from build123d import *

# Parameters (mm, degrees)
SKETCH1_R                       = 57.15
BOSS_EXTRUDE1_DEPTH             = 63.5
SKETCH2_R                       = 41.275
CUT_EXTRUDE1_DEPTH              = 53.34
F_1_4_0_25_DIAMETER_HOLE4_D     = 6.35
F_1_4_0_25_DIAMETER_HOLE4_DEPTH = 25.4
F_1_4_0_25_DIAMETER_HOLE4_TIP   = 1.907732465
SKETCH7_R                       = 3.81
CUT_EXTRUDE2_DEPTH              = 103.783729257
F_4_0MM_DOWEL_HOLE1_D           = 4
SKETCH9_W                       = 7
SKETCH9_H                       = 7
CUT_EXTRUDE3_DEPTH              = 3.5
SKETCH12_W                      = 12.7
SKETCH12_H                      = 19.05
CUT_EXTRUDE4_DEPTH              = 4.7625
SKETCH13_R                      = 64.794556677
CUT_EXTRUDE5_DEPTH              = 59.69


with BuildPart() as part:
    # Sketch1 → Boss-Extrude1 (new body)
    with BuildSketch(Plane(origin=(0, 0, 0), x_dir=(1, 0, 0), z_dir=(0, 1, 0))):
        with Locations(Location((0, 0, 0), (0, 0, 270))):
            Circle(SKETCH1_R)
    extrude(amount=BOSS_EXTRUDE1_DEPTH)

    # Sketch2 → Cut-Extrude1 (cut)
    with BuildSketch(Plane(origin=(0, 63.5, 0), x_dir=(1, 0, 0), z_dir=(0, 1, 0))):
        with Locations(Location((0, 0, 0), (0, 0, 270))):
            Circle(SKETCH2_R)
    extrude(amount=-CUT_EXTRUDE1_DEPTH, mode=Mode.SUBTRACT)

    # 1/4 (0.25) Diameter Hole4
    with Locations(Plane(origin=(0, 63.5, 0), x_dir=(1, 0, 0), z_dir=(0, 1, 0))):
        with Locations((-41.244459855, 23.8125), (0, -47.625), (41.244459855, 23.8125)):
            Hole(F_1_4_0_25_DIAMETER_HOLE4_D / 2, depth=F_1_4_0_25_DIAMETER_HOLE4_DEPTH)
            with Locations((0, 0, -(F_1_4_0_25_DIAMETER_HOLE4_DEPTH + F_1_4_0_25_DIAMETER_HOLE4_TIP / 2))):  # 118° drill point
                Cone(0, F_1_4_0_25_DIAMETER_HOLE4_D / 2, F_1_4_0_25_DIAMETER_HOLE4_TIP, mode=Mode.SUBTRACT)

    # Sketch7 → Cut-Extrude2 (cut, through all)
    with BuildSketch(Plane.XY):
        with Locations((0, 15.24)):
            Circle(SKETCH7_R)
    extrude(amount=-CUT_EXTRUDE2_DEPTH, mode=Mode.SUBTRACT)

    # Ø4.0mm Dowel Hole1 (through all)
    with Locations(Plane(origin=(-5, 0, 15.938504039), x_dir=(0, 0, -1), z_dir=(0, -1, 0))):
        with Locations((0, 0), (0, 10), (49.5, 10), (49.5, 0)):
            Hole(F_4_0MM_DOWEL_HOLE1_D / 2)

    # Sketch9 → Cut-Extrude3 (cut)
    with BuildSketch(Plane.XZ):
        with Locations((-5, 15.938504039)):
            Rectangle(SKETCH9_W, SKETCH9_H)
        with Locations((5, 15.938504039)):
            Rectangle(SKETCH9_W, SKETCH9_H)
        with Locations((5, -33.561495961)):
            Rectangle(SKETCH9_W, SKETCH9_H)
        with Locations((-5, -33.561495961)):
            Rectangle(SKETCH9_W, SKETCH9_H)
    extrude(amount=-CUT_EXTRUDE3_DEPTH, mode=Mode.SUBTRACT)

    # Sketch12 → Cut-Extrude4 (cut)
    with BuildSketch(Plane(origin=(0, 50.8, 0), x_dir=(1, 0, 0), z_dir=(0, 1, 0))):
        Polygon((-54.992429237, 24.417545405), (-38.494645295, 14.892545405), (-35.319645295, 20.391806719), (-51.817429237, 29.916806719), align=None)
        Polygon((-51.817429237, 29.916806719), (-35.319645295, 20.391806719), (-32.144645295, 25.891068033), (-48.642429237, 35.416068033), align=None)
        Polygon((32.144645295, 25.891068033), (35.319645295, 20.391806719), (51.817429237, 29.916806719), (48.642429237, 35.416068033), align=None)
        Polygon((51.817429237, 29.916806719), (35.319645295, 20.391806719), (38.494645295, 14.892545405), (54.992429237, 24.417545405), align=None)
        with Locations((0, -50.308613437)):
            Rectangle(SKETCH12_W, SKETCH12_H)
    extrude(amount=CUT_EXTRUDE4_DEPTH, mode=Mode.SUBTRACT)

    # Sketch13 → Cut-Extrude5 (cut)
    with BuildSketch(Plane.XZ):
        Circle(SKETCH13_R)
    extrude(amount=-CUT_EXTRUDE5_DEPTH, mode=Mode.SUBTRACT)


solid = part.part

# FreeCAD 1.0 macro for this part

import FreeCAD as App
import Part
import Sketcher

V = App.Vector
Q = App.Units.Quantity


def add_polygon(sketch, points):
    """Adds a closed chain of lines whose ends are joined by coincident constraints."""
    first, n = sketch.GeometryCount, len(points)
    for a, b in zip(points, points[1:] + points[:1]):
        sketch.addGeometry(Part.LineSegment(App.Vector(*a, 0), App.Vector(*b, 0)), False)
    for i in range(n):
        sketch.addConstraint(Sketcher.Constraint("Coincident", first + i, 2, first + (i + 1) % n, 1))

doc = App.newDocument("Part")
body = doc.addObject("PartDesign::Body", "Body")

# Sketch on XZ plane
sketch1 = body.newObject("Sketcher::SketchObject", "Sketch")
sketch1.AttachmentSupport = (doc.getObject("XZ_Plane"), [""])
sketch1.MapMode = "FlatFace"
sketch1.addGeometry(Part.Circle(V(0, 0, 0), V(0, 0, 1), 57), False)
sketch1.addConstraint([
    Sketcher.Constraint("Coincident", 0, 3, -1, 1),
    Sketcher.Constraint("Diameter", 0, Q("4.5 in")),
])
pad1 = body.newObject("PartDesign::Pad", "Pad")
pad1.Profile = sketch1
pad1.Length = Q("2.5 in")
pad1.Reversed = True

# Sketch on XZ plane
sketch2 = body.newObject("Sketcher::SketchObject", "Sketch001")
sketch2.AttachmentSupport = (doc.getObject("XZ_Plane"), [""])
sketch2.MapMode = "FlatFace"
sketch2.AttachmentOffset = App.Placement(V(0, 0, -2.5 * 25.4), App.Rotation())
sketch2.addGeometry(Part.Circle(V(0, 0, 0), V(0, 0, 1), 41), False)
sketch2.addConstraint([
    Sketcher.Constraint("Coincident", 0, 3, -1, 1),
    Sketcher.Constraint("Diameter", 0, Q("3.25 in")),
])
pocket1 = body.newObject("PartDesign::Pocket", "Pocket")
pocket1.Profile = sketch2
pocket1.Length = Q("2.1 in")
pocket1.Reversed = True

# Sketch on XZ plane
sketch3 = body.newObject("Sketcher::SketchObject", "Sketch002")
sketch3.AttachmentSupport = (doc.getObject("XZ_Plane"), [""])
sketch3.MapMode = "FlatFace"
sketch3.AttachmentOffset = App.Placement(V(0, 0, -2.5 * 25.4), App.Rotation())
sketch3.addGeometry([
    Part.Circle(V(-41.2, -23.8, 0), V(0, 0, 1), 3.2),
    Part.Circle(V(0, 47.6, 0), V(0, 0, 1), 3.2),
    Part.Circle(V(41.2, -23.8, 0), V(0, 0, 1), 3.2),
], False)
sketch3.addConstraint([
    Sketcher.Constraint("Equal", 0, 1),
    Sketcher.Constraint("Equal", 1, 2),
    Sketcher.Constraint("Symmetric", 0, 3, 2, 3, -2),
    Sketcher.Constraint("PointOnObject", 1, 3, -2),
    Sketcher.Constraint("Diameter", 0, Q("0.25 in")),
    Sketcher.Constraint("DistanceY", 0, 3, -1, 1, Q("0.9375 in")),
    Sketcher.Constraint("DistanceY", -1, 1, 1, 3, Q("1.875 in")),
    Sketcher.Constraint("DistanceX", 0, 3, -1, 1, Q("41.24446 mm")),
])
doc.recompute()
hole = body.newObject("PartDesign::Hole", "Hole")
hole.Profile = sketch3
hole.ThreadType = "None"
hole.Diameter = Q("0.25 in")
hole.DepthType = "Dimension"
hole.Depth = Q("1 in")
hole.DrillPoint = "Angled"
hole.DrillPointAngle = 118
hole.Reversed = True

# Sketch on XY plane
sketch4 = body.newObject("Sketcher::SketchObject", "Sketch003")
sketch4.AttachmentSupport = (doc.getObject("XY_Plane"), [""])
sketch4.MapMode = "FlatFace"
sketch4.addGeometry(Part.Circle(V(0, 15.2, 0), V(0, 0, 1), 3.8), False)
sketch4.addConstraint([
    Sketcher.Constraint("PointOnObject", 0, 3, -2),
    Sketcher.Constraint("Diameter", 0, Q("0.3 in")),
    Sketcher.Constraint("DistanceY", -1, 1, 0, 3, Q("0.6 in")),
])
pocket2 = body.newObject("PartDesign::Pocket", "Pocket001")
pocket2.Profile = sketch4
pocket2.Type = "ThroughAll"

# Sketch on XZ plane
sketch5 = body.newObject("Sketcher::SketchObject", "Sketch004")
sketch5.AttachmentSupport = (doc.getObject("XZ_Plane"), [""])
sketch5.MapMode = "FlatFace"
sketch5.addGeometry([
    Part.Circle(V(-5, 15.9, 0), V(0, 0, 1), 2),
    Part.Circle(V(5, 15.9, 0), V(0, 0, 1), 2),
    Part.Circle(V(5, -33.6, 0), V(0, 0, 1), 2),
    Part.Circle(V(-5, -33.6, 0), V(0, 0, 1), 2),
], False)
sketch5.addConstraint([
    Sketcher.Constraint("Equal", 0, 1),
    Sketcher.Constraint("Equal", 1, 2),
    Sketcher.Constraint("Equal", 2, 3),
    Sketcher.Constraint("Symmetric", 0, 3, 1, 3, -2),
    Sketcher.Constraint("Symmetric", 2, 3, 3, 3, -2),
    Sketcher.Constraint("Vertical", 1, 3, 2, 3),
    Sketcher.Constraint("Diameter", 0, Q("4 mm")),
    Sketcher.Constraint("DistanceY", -1, 1, 0, 3, Q("0.6275002 in")),
    Sketcher.Constraint("DistanceX", 0, 3, -1, 1, Q("5 mm")),
    Sketcher.Constraint("DistanceY", 2, 3, 1, 3, Q("49.5 mm")),
])
doc.recompute()
hole2 = body.newObject("PartDesign::Hole", "Hole001")
hole2.Profile = sketch5
hole2.ThreadType = "None"
hole2.Diameter = 4
hole2.DepthType = "ThroughAll"

# Sketch on XZ plane
sketch6 = body.newObject("Sketcher::SketchObject", "Sketch005")
sketch6.AttachmentSupport = (doc.getObject("XZ_Plane"), [""])
sketch6.MapMode = "FlatFace"
add_polygon(sketch6, [(-8, 19), (-8, 12), (-2, 12), (-2, 19)])  # lines 0-3
add_polygon(sketch6, [(2, 19), (2, 12), (8, 12), (8, 19)])  # lines 4-7
add_polygon(sketch6, [(2, -30), (2, -37), (8, -37), (8, -30)])  # lines 8-11
add_polygon(sketch6, [(-8, -30), (-8, -37), (-2, -37), (-2, -30)])  # lines 12-15
sketch6.addConstraint([
    Sketcher.Constraint("Vertical", 0),
    Sketcher.Constraint("Horizontal", 1),
    Sketcher.Constraint("Vertical", 2),
    Sketcher.Constraint("Horizontal", 3),
    Sketcher.Constraint("Vertical", 4),
    Sketcher.Constraint("Horizontal", 5),
    Sketcher.Constraint("Vertical", 6),
    Sketcher.Constraint("Horizontal", 7),
    Sketcher.Constraint("Vertical", 8),
    Sketcher.Constraint("Horizontal", 9),
    Sketcher.Constraint("Vertical", 10),
    Sketcher.Constraint("Horizontal", 11),
    Sketcher.Constraint("Vertical", 12),
    Sketcher.Constraint("Horizontal", 13),
    Sketcher.Constraint("Vertical", 14),
    Sketcher.Constraint("Horizontal", 15),
    Sketcher.Constraint("Symmetric", 1, 2, 4, 2, -2),
    Sketcher.Constraint("Symmetric", 3, 2, 6, 2, -2),
    Sketcher.Constraint("Symmetric", 9, 2, 12, 2, -2),
    Sketcher.Constraint("Symmetric", 11, 2, 14, 2, -2),
    Sketcher.Constraint("Vertical", 7, 2, 8, 2),
    Sketcher.Constraint("Vertical", 6, 2, 9, 2),
    Sketcher.Constraint("Equal", 15, 0),
    Sketcher.Constraint("Equal", 6, 8),
    Sketcher.Constraint("DistanceX", 1, 1, 1, 2, Q("7 mm")),
    Sketcher.Constraint("DistanceX", 0, 2, -1, 1, Q("8.5 mm")),
    Sketcher.Constraint("DistanceY", 8, 2, 4, 2, Q("49.5 mm")),
    Sketcher.Constraint("DistanceY", -1, 1, 0, 2, Q("12.438504 mm")),
])
pocket3 = body.newObject("PartDesign::Pocket", "Pocket002")
pocket3.Profile = sketch6
pocket3.Length = 3.5

# Sketch on XZ plane
sketch7 = body.newObject("Sketcher::SketchObject", "Sketch006")
sketch7.AttachmentSupport = (doc.getObject("XZ_Plane"), [""])
sketch7.MapMode = "FlatFace"
sketch7.AttachmentOffset = App.Placement(V(0, 0, -2 * 25.4), App.Rotation())
add_polygon(sketch7, [(-55, -24), (-38, -15), (-32, -26), (-49, -35)])  # lines 0-3
add_polygon(sketch7, [(32, -26), (38, -15), (55, -24), (49, -35)])  # lines 4-7
add_polygon(sketch7, [(-6, 41), (-6, 60), (6, 60), (6, 41)])  # lines 8-11
sketch7.addConstraint([
    Sketcher.Constraint("Vertical", 8),
    Sketcher.Constraint("Horizontal", 9),
    Sketcher.Constraint("Vertical", 10),
    Sketcher.Constraint("Horizontal", 11),
    Sketcher.Constraint("Symmetric", 0, 2, 4, 2, -2),
    Sketcher.Constraint("Symmetric", 3, 2, 5, 2, -2),
    Sketcher.Constraint("Symmetric", 2, 2, 6, 2, -2),
    Sketcher.Constraint("Symmetric", 1, 2, 7, 2, -2),
    Sketcher.Constraint("Perpendicular", 0, 1),
    Sketcher.Constraint("Perpendicular", 1, 2),
    Sketcher.Constraint("Perpendicular", 2, 3),
    Sketcher.Constraint("DistanceX", 9, 1, 9, 2, Q("0.5 in")),
    Sketcher.Constraint("Angle", 0, Q("30 deg")),
    Sketcher.Constraint("Distance", 1, Q("0.5 in")),
    Sketcher.Constraint("DistanceY", 8, 1, 8, 2, Q("0.75 in")),
    Sketcher.Constraint("Distance", 0, Q("0.75 in")),
    Sketcher.Constraint("DistanceX", 8, 2, -1, 1, Q("0.25 in")),
    Sketcher.Constraint("DistanceY", 1, 2, -1, 1, Q("25.891068 mm")),
    Sketcher.Constraint("DistanceX", 2, 2, -1, 1, Q("48.642429 mm")),
    Sketcher.Constraint("DistanceY", 0, 2, 8, 2, Q("74.726159 mm")),
])
pocket4 = body.newObject("PartDesign::Pocket", "Pocket003")
pocket4.Profile = sketch7
pocket4.Length = Q("0.1875 in")

# Sketch on XZ plane
sketch8 = body.newObject("Sketcher::SketchObject", "Sketch007")
sketch8.AttachmentSupport = (doc.getObject("XZ_Plane"), [""])
sketch8.MapMode = "FlatFace"
sketch8.addGeometry(Part.Circle(V(0, 0, 0), V(0, 0, 1), 65), False)
sketch8.addConstraint([
    Sketcher.Constraint("Coincident", 0, 3, -1, 1),
    Sketcher.Constraint("Diameter", 0, Q("129.589113 mm")),
])
pocket5 = body.newObject("PartDesign::Pocket", "Pocket004")
pocket5.Profile = sketch8
pocket5.Length = Q("2.35 in")

doc.recompute()
